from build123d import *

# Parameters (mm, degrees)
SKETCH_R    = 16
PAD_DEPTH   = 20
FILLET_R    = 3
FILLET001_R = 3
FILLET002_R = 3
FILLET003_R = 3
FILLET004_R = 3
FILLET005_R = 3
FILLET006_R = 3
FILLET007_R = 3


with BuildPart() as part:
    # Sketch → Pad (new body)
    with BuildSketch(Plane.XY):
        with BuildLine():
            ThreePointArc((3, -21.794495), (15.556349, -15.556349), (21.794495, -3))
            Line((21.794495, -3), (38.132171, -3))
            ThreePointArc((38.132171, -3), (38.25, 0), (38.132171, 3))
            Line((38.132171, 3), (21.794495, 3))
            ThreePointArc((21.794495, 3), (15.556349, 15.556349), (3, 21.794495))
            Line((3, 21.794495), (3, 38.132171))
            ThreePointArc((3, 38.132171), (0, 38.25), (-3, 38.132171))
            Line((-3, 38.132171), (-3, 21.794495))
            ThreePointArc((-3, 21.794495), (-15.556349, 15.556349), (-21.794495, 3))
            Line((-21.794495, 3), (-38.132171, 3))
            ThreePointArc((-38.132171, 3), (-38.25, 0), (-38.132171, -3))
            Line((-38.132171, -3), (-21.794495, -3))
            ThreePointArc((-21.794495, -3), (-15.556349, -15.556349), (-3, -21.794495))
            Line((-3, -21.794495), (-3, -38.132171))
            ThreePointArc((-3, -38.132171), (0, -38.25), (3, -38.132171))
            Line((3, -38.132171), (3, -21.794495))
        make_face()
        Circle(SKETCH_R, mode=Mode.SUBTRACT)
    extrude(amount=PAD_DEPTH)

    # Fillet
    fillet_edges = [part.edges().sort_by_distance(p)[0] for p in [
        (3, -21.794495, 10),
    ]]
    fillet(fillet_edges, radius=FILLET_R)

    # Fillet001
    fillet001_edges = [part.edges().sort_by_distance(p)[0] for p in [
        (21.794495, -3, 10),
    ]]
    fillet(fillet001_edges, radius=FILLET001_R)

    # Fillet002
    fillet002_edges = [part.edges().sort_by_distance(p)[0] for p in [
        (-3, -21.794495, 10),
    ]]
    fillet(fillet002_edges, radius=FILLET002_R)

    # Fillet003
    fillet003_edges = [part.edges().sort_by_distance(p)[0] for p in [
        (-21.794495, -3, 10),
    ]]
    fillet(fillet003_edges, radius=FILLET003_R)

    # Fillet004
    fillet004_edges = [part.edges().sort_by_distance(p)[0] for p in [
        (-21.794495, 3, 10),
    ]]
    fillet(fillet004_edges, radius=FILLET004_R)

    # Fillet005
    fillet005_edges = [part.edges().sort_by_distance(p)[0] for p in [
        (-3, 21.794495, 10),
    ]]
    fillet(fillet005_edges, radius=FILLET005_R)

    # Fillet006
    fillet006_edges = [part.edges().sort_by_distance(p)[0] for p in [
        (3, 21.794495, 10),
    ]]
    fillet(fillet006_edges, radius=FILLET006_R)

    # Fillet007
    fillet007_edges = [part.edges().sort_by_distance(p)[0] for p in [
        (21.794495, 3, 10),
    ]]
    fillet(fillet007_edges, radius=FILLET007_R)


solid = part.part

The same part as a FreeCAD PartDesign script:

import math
import FreeCAD as App
import Part
import Sketcher
Q = App.Units.Quantity


def edges_at(feature, points):
    """Names of the edges that pass closest to the given points."""
    edges = feature.Shape.Edges
    near = lambda p: min(range(len(edges)), key=lambda i: edges[i].distToShape(Part.Vertex(*p))[0])
    return sorted({f"Edge{near(p) + 1}" for p in points})

doc = App.newDocument("Part")
body = doc.addObject("PartDesign::Body", "Body")

# Sketch on XY plane
sketch1 = doc.addObject("Sketcher::SketchObject", "Sketch")
body.addObject(sketch1)
sketch1.AttachmentSupport = (doc.XY_Plane, [""])
sketch1.MapMode = "FlatFace"
sketch1.addGeometry(Part.ArcOfCircle(Part.Circle(App.Vector(0, 0, 0), App.Vector(0, 0, 1), 22), math.radians(-82), math.radians(-8)), False)
sketch1.addGeometry(Part.LineSegment(App.Vector(22, -3, 0), App.Vector(38, -3, 0)), False)
sketch1.addGeometry(Part.ArcOfCircle(Part.Circle(App.Vector(0, 0, 0), App.Vector(0, 0, 1), 38), math.radians(-4.5), math.radians(4.5)), False)
sketch1.addGeometry(Part.LineSegment(App.Vector(38, 3, 0), App.Vector(22, 3, 0)), False)
sketch1.addGeometry(Part.ArcOfCircle(Part.Circle(App.Vector(0, 0, 0), App.Vector(0, 0, 1), 22), math.radians(8), math.radians(82)), False)
sketch1.addGeometry(Part.LineSegment(App.Vector(3, 22, 0), App.Vector(3, 38, 0)), False)
sketch1.addGeometry(Part.ArcOfCircle(Part.Circle(App.Vector(0, 0, 0), App.Vector(0, 0, 1), 38), math.radians(85.5), math.radians(94.5)), False)
sketch1.addGeometry(Part.LineSegment(App.Vector(-3, 38, 0), App.Vector(-3, 22, 0)), False)
sketch1.addGeometry(Part.ArcOfCircle(Part.Circle(App.Vector(0, 0, 0), App.Vector(0, 0, 1), 22), math.radians(98), math.radians(172)), False)
sketch1.addGeometry(Part.LineSegment(App.Vector(-22, 3, 0), App.Vector(-38, 3, 0)), False)
sketch1.addGeometry(Part.ArcOfCircle(Part.Circle(App.Vector(0, 0, 0), App.Vector(0, 0, 1), 38), math.radians(175.5), math.radians(184.5)), False)
sketch1.addGeometry(Part.LineSegment(App.Vector(-38, -3, 0), App.Vector(-22, -3, 0)), False)
sketch1.addGeometry(Part.ArcOfCircle(Part.Circle(App.Vector(0, 0, 0), App.Vector(0, 0, 1), 22), math.radians(-172), math.radians(-98)), False)
sketch1.addGeometry(Part.LineSegment(App.Vector(-3, -22, 0), App.Vector(-3, -38, 0)), False)
sketch1.addGeometry(Part.ArcOfCircle(Part.Circle(App.Vector(0, 0, 0), App.Vector(0, 0, 1), 38), math.radians(-94.5), math.radians(-85.5)), False)
sketch1.addGeometry(Part.LineSegment(App.Vector(3, -38, 0), App.Vector(3, -22, 0)), False)
sketch1.addGeometry(Part.Circle(App.Vector(0, 0, 0), App.Vector(0, 0, 1), 16), False)
sketch1.addConstraint(Sketcher.Constraint("Coincident", 0, 2, 1, 1))
sketch1.addConstraint(Sketcher.Constraint("Coincident", 1, 2, 2, 1))
sketch1.addConstraint(Sketcher.Constraint("Coincident", 2, 2, 3, 1))
sketch1.addConstraint(Sketcher.Constraint("Coincident", 3, 2, 4, 1))
sketch1.addConstraint(Sketcher.Constraint("Coincident", 4, 2, 5, 1))
sketch1.addConstraint(Sketcher.Constraint("Coincident", 5, 2, 6, 1))
sketch1.addConstraint(Sketcher.Constraint("Coincident", 6, 2, 7, 1))
sketch1.addConstraint(Sketcher.Constraint("Coincident", 7, 2, 8, 1))
sketch1.addConstraint(Sketcher.Constraint("Coincident", 8, 2, 9, 1))
sketch1.addConstraint(Sketcher.Constraint("Coincident", 9, 2, 10, 1))
sketch1.addConstraint(Sketcher.Constraint("Coincident", 10, 2, 11, 1))
sketch1.addConstraint(Sketcher.Constraint("Coincident", 11, 2, 12, 1))
sketch1.addConstraint(Sketcher.Constraint("Coincident", 12, 2, 13, 1))
sketch1.addConstraint(Sketcher.Constraint("Coincident", 13, 2, 14, 1))
sketch1.addConstraint(Sketcher.Constraint("Coincident", 14, 2, 15, 1))
sketch1.addConstraint(Sketcher.Constraint("Coincident", 15, 2, 0, 1))
sketch1.addConstraint(Sketcher.Constraint("Horizontal", 1))
sketch1.addConstraint(Sketcher.Constraint("Horizontal", 3))
sketch1.addConstraint(Sketcher.Constraint("Vertical", 5))
sketch1.addConstraint(Sketcher.Constraint("Vertical", 7))
sketch1.addConstraint(Sketcher.Constraint("Horizontal", 9))
sketch1.addConstraint(Sketcher.Constraint("Horizontal", 11))
sketch1.addConstraint(Sketcher.Constraint("Vertical", 13))
sketch1.addConstraint(Sketcher.Constraint("Vertical", 15))
sketch1.addConstraint(Sketcher.Constraint("Coincident", 0, 3, -1, 1))
sketch1.addConstraint(Sketcher.Constraint("Coincident", 4, 3, -1, 1))
sketch1.addConstraint(Sketcher.Constraint("Coincident", 8, 3, -1, 1))
sketch1.addConstraint(Sketcher.Constraint("Coincident", 12, 3, -1, 1))
sketch1.addConstraint(Sketcher.Constraint("Coincident", 16, 3, -1, 1))
sketch1.addConstraint(Sketcher.Constraint("Equal", 0, 4))
sketch1.addConstraint(Sketcher.Constraint("Equal", 2, 6))
sketch1.addConstraint(Sketcher.Constraint("Equal", 4, 8))
sketch1.addConstraint(Sketcher.Constraint("Equal", 6, 10))
sketch1.addConstraint(Sketcher.Constraint("Equal", 8, 12))
sketch1.addConstraint(Sketcher.Constraint("Equal", 10, 14))
sketch1.addConstraint(Sketcher.Constraint("Symmetric", 2, 3, 10, 3, -1, 1))
sketch1.addConstraint(Sketcher.Constraint("Symmetric", 6, 3, 14, 3, -1, 1))
sketch1.addConstraint(Sketcher.Constraint("Symmetric", 5, 2, 6, 2, -2))
sketch1.addConstraint(Sketcher.Constraint("Symmetric", 2, 2, 9, 2, -2))
sketch1.addConstraint(Sketcher.Constraint("Horizontal", 1, 2, 10, 2))
sketch1.addConstraint(Sketcher.Constraint("Horizontal", 13, 2, 14, 2))
sketch1.addConstraint(Sketcher.Constraint("Vertical", 1, 2, 2, 2))
sketch1.addConstraint(Sketcher.Constraint("Vertical", 7, 2, 12, 2))
sketch1.addConstraint(Sketcher.Constraint("Equal", 11, 5))
sketch1.addConstraint(Sketcher.Constraint("Diameter", 16, Q("32 mm")))
sketch1.addConstraint(Sketcher.Constraint("DistanceY", 0, 2, -1, 1, Q("3 mm")))
sketch1.addConstraint(Sketcher.Constraint("DistanceX", -1, 1, 4, 2, Q("3 mm")))
sketch1.addConstraint(Sketcher.Constraint("Radius", 0, Q("22.000002 mm")))
sketch1.addConstraint(Sketcher.Constraint("Radius", 2, Q("38.249852 mm")))
sketch1.addConstraint(Sketcher.Constraint("DistanceX", 1, 1, 1, 2, Q("16.337676 mm")))
pad1 = doc.addObject("PartDesign::Pad", "Pad")
body.addObject(pad1)
pad1.Profile = sketch1
pad1.Length = 20
doc.recompute()

fillet = doc.addObject("PartDesign::Fillet", "Fillet")
body.addObject(fillet)
fillet.Base = (pad1, edges_at(pad1, [(3, -21.794, 10)]))
fillet.Radius = 3
doc.recompute()

fillet2 = doc.addObject("PartDesign::Fillet", "Fillet001")
body.addObject(fillet2)
fillet2.Base = (fillet, edges_at(fillet, [(21.794, -3, 10)]))
fillet2.Radius = 3
doc.recompute()

fillet3 = doc.addObject("PartDesign::Fillet", "Fillet002")
body.addObject(fillet3)
fillet3.Base = (fillet2, edges_at(fillet2, [(-3, -21.794, 10)]))
fillet3.Radius = 3
doc.recompute()

fillet4 = doc.addObject("PartDesign::Fillet", "Fillet003")
body.addObject(fillet4)
fillet4.Base = (fillet3, edges_at(fillet3, [(-21.794, -3, 10)]))
fillet4.Radius = 3
doc.recompute()

fillet5 = doc.addObject("PartDesign::Fillet", "Fillet004")
body.addObject(fillet5)
fillet5.Base = (fillet4, edges_at(fillet4, [(-21.794, 3, 10)]))
fillet5.Radius = 3
doc.recompute()

fillet6 = doc.addObject("PartDesign::Fillet", "Fillet005")
body.addObject(fillet6)
fillet6.Base = (fillet5, edges_at(fillet5, [(-3, 21.794, 10)]))
fillet6.Radius = 3
doc.recompute()

fillet7 = doc.addObject("PartDesign::Fillet", "Fillet006")
body.addObject(fillet7)
fillet7.Base = (fillet6, edges_at(fillet6, [(3, 21.794, 10)]))
fillet7.Radius = 3
doc.recompute()

fillet8 = doc.addObject("PartDesign::Fillet", "Fillet007")
body.addObject(fillet8)
fillet8.Base = (fillet7, edges_at(fillet7, [(21.794, 3, 10)]))
fillet8.Radius = 3

doc.recompute()
